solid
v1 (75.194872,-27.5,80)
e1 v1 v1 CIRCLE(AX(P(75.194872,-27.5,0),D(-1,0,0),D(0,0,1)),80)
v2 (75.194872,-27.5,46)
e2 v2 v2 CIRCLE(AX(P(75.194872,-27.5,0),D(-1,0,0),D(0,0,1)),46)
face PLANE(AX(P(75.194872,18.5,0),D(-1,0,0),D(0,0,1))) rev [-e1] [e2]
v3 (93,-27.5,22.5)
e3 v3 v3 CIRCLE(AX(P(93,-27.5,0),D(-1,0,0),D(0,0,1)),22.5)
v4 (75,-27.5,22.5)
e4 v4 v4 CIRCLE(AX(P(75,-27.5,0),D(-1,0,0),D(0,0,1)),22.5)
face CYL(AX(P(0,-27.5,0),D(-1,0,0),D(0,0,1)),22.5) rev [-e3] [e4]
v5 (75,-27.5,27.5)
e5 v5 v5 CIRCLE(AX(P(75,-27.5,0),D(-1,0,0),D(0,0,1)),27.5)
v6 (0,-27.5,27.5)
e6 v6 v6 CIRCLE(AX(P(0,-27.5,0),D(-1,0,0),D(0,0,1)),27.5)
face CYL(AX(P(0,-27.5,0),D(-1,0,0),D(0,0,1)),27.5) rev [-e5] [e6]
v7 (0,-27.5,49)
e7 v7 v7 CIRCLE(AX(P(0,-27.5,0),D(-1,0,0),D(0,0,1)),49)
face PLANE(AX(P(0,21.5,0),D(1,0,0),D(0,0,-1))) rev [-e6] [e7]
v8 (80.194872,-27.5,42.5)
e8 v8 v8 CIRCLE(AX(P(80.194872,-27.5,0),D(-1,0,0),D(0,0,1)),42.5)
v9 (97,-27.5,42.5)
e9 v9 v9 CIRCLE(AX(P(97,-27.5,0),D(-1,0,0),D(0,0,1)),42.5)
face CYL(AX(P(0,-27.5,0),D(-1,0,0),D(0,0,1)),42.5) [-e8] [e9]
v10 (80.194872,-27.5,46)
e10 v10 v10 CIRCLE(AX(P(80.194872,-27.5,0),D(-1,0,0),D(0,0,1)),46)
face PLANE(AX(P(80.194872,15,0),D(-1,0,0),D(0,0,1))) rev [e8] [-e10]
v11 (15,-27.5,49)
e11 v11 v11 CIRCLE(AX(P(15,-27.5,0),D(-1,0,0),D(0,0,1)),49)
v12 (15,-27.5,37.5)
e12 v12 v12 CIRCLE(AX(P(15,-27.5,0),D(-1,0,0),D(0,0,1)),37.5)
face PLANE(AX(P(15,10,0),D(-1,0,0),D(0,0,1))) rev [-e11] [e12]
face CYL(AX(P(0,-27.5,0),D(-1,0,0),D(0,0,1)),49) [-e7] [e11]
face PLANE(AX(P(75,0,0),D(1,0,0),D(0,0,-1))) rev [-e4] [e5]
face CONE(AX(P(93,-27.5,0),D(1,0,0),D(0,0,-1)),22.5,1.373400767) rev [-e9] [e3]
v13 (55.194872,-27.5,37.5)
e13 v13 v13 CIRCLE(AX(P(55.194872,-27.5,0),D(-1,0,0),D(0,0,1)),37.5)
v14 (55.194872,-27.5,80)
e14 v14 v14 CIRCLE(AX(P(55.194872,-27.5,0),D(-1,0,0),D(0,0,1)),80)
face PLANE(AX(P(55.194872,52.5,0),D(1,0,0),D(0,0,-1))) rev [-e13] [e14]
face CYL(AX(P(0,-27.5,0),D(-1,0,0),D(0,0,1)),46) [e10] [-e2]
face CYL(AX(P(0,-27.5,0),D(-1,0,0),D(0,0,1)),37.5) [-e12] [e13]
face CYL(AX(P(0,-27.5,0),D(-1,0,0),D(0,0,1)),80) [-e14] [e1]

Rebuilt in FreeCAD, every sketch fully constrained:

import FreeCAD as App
import Part
import Sketcher
from FreeCAD import Vector

doc = App.newDocument("Part")
body = doc.addObject("PartDesign::Body", "Body")

# Sketch on XY plane
sketch1 = body.newObject("Sketcher::SketchObject", "Sketch")
sketch1.AttachmentSupport = (doc.getObject("XY_Plane"), [""])
sketch1.MapMode = "FlatFace"
sketch1.addGeometry([
    Part.LineSegment(Vector(0, 0, 0), Vector(75, 0, 0)),  # 0
    Part.LineSegment(Vector(75, 0, 0), Vector(75, -5, 0)),  # 1
    Part.LineSegment(Vector(75, -5, 0), Vector(93, -5, 0)),  # 2
    Part.LineSegment(Vector(93, -5, 0), Vector(97, 15, 0)),  # 3
    Part.LineSegment(Vector(97, 15, 0), Vector(80.2, 15, 0)),  # 4
    Part.LineSegment(Vector(80.2, 15, 0), Vector(80.2, 18.5, 0)),  # 5
    Part.LineSegment(Vector(80.2, 18.5, 0), Vector(75.2, 18.5, 0)),  # 6
    Part.LineSegment(Vector(75.2, 18.5, 0), Vector(75.2, 52.5, 0)),  # 7
    Part.LineSegment(Vector(75.2, 52.5, 0), Vector(55.2, 52.5, 0)),  # 8
    Part.LineSegment(Vector(55.2, 52.5, 0), Vector(55.2, 10, 0)),  # 9
    Part.LineSegment(Vector(55.2, 10, 0), Vector(15, 10, 0)),  # 10
    Part.LineSegment(Vector(15, 10, 0), Vector(15, 21.5, 0)),  # 11
    Part.LineSegment(Vector(15, 21.5, 0), Vector(0, 21.5, 0)),  # 12
    Part.LineSegment(Vector(0, 21.5, 0), Vector(0, 0, 0)),  # 13
], False)
sketch1.addGeometry(Part.LineSegment(Vector(0, -27.5, 0), Vector(97, -27.5, 0)), True)  # axis
sketch1.addConstraint([
    Sketcher.Constraint("Coincident", 0, 2, 1, 1),
    Sketcher.Constraint("Coincident", 1, 2, 2, 1),
    Sketcher.Constraint("Coincident", 2, 2, 3, 1),
    Sketcher.Constraint("Coincident", 3, 2, 4, 1),
    Sketcher.Constraint("Coincident", 4, 2, 5, 1),
    Sketcher.Constraint("Coincident", 5, 2, 6, 1),
    Sketcher.Constraint("Coincident", 6, 2, 7, 1),
    Sketcher.Constraint("Coincident", 7, 2, 8, 1),
    Sketcher.Constraint("Coincident", 8, 2, 9, 1),
    Sketcher.Constraint("Coincident", 9, 2, 10, 1),
    Sketcher.Constraint("Coincident", 10, 2, 11, 1),
    Sketcher.Constraint("Coincident", 11, 2, 12, 1),
    Sketcher.Constraint("Coincident", 12, 2, 13, 1),
    Sketcher.Constraint("Coincident", 13, 2, 0, 1),
    Sketcher.Constraint("Horizontal", 0),
    Sketcher.Constraint("Vertical", 1),
    Sketcher.Constraint("Horizontal", 2),
    Sketcher.Constraint("Horizontal", 4),
    Sketcher.Constraint("Vertical", 5),
    Sketcher.Constraint("Horizontal", 6),
    Sketcher.Constraint("Vertical", 7),
    Sketcher.Constraint("Horizontal", 8),
    Sketcher.Constraint("Vertical", 9),
    Sketcher.Constraint("Horizontal", 10),
    Sketcher.Constraint("Vertical", 11),
    Sketcher.Constraint("Horizontal", 12),
    Sketcher.Constraint("Vertical", 13),
    Sketcher.Constraint("Horizontal", 14),
    Sketcher.Constraint("Coincident", 13, 2, -1, 1),
    Sketcher.Constraint("PointOnObject", 14, 1, -2),
    Sketcher.Constraint("Vertical", 3, 2, 14, 2),
    Sketcher.Constraint("Equal", 6, 1),
    Sketcher.Constraint("DistanceX", 0, 1, 0, 2, 75.0),
    Sketcher.Constraint("DistanceX", 2, 1, 2, 2, 18.0),
    Sketcher.Constraint("DistanceX", 6, 2, 6, 1, 5.0),
    Sketcher.Constraint("DistanceX", 8, 2, 8, 1, 20.0),
    Sketcher.Constraint("DistanceX", 12, 2, 12, 1, 15.0),
    Sketcher.Constraint("DistanceX", 14, 1, 14, 2, 97.0),
    Sketcher.Constraint("DistanceY", 7, 1, 7, 2, 34.0),
    Sketcher.Constraint("DistanceY", 5, 1, 5, 2, 3.5),
    Sketcher.Constraint("DistanceY", 9, 2, 9, 1, 42.5),
    Sketcher.Constraint("DistanceY", 11, 1, 11, 2, 11.5),
    Sketcher.Constraint("DistanceY", 13, 2, 13, 1, 21.5),
    Sketcher.Constraint("DistanceY", 14, 1, 12, 2, 49.0),
    Sketcher.Constraint("DistanceX", 4, 2, 4, 1, 16.805128),
])
revolution = body.newObject("PartDesign::Revolution", "Revolution")
revolution.Profile = sketch1
revolution.ReferenceAxis = (sketch1, ["Axis0"])
revolution.Angle = 360

doc.recompute()
